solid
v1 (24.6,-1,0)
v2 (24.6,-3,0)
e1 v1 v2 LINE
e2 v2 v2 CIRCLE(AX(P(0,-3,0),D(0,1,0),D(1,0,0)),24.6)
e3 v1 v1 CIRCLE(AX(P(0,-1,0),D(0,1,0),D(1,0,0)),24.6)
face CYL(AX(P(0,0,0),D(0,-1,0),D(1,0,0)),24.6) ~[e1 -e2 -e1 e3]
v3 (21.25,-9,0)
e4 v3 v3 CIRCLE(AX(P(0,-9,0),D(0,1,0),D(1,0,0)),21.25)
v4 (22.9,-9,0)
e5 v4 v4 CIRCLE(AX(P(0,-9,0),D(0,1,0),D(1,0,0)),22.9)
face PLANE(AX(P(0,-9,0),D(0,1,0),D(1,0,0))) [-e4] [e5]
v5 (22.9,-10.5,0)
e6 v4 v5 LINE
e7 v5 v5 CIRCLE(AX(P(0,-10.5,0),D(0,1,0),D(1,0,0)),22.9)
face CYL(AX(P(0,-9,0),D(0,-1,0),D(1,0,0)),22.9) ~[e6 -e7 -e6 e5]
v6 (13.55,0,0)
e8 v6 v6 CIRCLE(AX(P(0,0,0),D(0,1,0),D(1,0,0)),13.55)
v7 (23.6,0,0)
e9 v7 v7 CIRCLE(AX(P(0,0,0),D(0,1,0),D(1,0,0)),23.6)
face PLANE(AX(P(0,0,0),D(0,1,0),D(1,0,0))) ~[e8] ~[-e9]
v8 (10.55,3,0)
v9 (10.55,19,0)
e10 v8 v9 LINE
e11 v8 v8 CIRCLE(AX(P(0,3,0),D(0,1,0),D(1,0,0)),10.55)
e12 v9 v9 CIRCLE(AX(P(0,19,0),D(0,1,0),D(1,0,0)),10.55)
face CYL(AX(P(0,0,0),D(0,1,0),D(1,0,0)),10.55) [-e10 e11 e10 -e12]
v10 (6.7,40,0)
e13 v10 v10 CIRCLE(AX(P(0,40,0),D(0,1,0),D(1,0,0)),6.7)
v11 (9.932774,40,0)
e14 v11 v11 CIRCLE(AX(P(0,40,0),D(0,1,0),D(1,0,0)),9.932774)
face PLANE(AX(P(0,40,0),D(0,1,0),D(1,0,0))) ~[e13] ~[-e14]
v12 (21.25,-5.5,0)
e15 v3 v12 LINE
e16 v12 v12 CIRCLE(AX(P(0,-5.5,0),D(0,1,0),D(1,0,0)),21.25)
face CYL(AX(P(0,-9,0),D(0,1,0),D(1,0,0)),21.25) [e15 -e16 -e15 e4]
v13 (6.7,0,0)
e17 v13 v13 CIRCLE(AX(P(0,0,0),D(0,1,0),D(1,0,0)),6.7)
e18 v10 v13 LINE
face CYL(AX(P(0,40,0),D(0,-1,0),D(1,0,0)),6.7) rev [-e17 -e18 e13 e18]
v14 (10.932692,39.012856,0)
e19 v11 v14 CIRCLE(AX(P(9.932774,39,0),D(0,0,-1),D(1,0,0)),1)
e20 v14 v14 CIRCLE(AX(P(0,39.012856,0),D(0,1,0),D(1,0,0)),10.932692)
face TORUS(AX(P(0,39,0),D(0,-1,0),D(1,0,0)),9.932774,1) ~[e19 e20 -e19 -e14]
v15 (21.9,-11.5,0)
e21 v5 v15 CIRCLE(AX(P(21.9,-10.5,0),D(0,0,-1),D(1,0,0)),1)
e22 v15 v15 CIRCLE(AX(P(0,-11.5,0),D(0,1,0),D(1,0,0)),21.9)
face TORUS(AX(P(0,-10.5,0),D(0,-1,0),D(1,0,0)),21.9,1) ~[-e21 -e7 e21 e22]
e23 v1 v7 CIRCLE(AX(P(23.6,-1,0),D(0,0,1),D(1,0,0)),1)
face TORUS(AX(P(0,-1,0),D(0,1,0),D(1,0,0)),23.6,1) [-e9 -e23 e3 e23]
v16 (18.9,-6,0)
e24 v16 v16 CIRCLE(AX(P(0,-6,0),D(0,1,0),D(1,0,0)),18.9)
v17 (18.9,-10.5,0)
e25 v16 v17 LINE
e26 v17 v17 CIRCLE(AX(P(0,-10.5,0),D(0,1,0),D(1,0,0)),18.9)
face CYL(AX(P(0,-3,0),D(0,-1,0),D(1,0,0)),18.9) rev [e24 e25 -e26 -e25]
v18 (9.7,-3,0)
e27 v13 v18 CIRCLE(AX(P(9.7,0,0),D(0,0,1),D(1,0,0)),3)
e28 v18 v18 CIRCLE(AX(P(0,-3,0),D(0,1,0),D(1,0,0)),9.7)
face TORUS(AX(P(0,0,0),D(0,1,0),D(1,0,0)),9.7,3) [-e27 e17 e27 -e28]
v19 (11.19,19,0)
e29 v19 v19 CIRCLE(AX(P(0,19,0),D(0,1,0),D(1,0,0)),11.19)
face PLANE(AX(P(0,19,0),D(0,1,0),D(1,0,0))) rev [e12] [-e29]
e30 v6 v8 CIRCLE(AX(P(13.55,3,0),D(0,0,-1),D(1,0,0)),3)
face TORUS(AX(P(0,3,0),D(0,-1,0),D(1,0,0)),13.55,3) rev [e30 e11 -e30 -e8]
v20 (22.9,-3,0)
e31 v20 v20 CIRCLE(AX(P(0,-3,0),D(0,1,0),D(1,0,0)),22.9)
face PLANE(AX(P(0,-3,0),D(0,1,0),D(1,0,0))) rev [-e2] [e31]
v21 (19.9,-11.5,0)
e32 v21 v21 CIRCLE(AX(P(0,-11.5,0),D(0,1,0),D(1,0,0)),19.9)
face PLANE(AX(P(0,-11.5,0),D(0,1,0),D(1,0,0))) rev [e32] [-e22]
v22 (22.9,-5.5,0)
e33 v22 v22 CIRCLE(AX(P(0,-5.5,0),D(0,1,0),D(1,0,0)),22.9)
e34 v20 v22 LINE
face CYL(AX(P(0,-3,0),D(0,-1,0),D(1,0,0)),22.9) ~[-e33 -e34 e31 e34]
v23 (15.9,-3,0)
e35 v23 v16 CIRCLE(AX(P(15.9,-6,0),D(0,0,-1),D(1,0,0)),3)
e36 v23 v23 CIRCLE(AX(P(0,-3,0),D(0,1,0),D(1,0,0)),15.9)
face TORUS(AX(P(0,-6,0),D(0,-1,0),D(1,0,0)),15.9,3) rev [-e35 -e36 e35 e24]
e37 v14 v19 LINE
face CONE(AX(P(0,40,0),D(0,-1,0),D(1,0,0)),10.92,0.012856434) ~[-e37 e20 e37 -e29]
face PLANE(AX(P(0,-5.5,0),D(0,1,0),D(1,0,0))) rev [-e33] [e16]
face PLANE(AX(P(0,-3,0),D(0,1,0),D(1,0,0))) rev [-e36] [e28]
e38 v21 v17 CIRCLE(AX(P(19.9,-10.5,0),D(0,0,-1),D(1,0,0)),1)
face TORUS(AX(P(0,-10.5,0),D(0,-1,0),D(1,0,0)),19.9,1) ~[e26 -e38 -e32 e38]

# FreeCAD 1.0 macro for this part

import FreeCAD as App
import Part
import Sketcher
from FreeCAD import Vector


def edges_at(feature, points):
    """Names of the edges that pass closest to the given points."""
    edges = feature.Shape.Edges
    near = lambda p: min(range(len(edges)), key=lambda i: edges[i].distToShape(Part.Vertex(*p))[0])
    return sorted({f"Edge{near(p) + 1}" for p in points})

doc = App.newDocument("Part")
body = doc.addObject("PartDesign::Body", "Body")

sketch1 = body.newObject("Sketcher::SketchObject", "Sketch")
sketch1.AttachmentSupport = (doc.getObject("XY_Plane"), [""])
sketch1.MapMode = "FlatFace"
sketch1.addGeometry([
    Part.LineSegment(Vector(24.6, -3, 0), Vector(24.6, 0, 0)),
    Part.LineSegment(Vector(24.6, 0, 0), Vector(10.6, 0, 0)),
    Part.LineSegment(Vector(10.6, 0, 0), Vector(10.6, 19, 0)),
    Part.LineSegment(Vector(10.6, 19, 0), Vector(11.2, 19, 0)),
    Part.LineSegment(Vector(11.2, 19, 0), Vector(10.9, 40, 0)),
    Part.LineSegment(Vector(10.9, 40, 0), Vector(6.7, 40, 0)),
    Part.LineSegment(Vector(6.7, 40, 0), Vector(6.7, -3, 0)),
    Part.LineSegment(Vector(6.7, -3, 0), Vector(18.9, -3, 0)),
    Part.LineSegment(Vector(18.9, -3, 0), Vector(18.9, -11.5, 0)),
    Part.LineSegment(Vector(18.9, -11.5, 0), Vector(22.9, -11.5, 0)),
    Part.LineSegment(Vector(22.9, -11.5, 0), Vector(22.9, -9, 0)),
    Part.LineSegment(Vector(22.9, -9, 0), Vector(21.2, -9, 0)),
    Part.LineSegment(Vector(21.2, -9, 0), Vector(21.2, -5.5, 0)),
    Part.LineSegment(Vector(21.2, -5.5, 0), Vector(22.9, -5.5, 0)),
    Part.LineSegment(Vector(22.9, -5.5, 0), Vector(22.9, -3, 0)),
    Part.LineSegment(Vector(22.9, -3, 0), Vector(24.6, -3, 0)),
], False)
sketch1.addConstraint([
    Sketcher.Constraint("Coincident", 0, 2, 1, 1),
    Sketcher.Constraint("Coincident", 1, 2, 2, 1),
    Sketcher.Constraint("Coincident", 2, 2, 3, 1),
    Sketcher.Constraint("Coincident", 3, 2, 4, 1),
    Sketcher.Constraint("Coincident", 4, 2, 5, 1),
    Sketcher.Constraint("Coincident", 5, 2, 6, 1),
    Sketcher.Constraint("Coincident", 6, 2, 7, 1),
    Sketcher.Constraint("Coincident", 7, 2, 8, 1),
    Sketcher.Constraint("Coincident", 8, 2, 9, 1),
    Sketcher.Constraint("Coincident", 9, 2, 10, 1),
    Sketcher.Constraint("Coincident", 10, 2, 11, 1),
    Sketcher.Constraint("Coincident", 11, 2, 12, 1),
    Sketcher.Constraint("Coincident", 12, 2, 13, 1),
    Sketcher.Constraint("Coincident", 13, 2, 14, 1),
    Sketcher.Constraint("Coincident", 14, 2, 15, 1),
    Sketcher.Constraint("Coincident", 15, 2, 0, 1),
    Sketcher.Constraint("Vertical", 0),
    Sketcher.Constraint("Horizontal", 1),
    Sketcher.Constraint("Vertical", 2),
    Sketcher.Constraint("Horizontal", 3),
    Sketcher.Constraint("Horizontal", 5),
    Sketcher.Constraint("Vertical", 6),
    Sketcher.Constraint("Horizontal", 7),
    Sketcher.Constraint("Vertical", 8),
    Sketcher.Constraint("Horizontal", 9),
    Sketcher.Constraint("Vertical", 10),
    Sketcher.Constraint("Horizontal", 11),
    Sketcher.Constraint("Vertical", 12),
    Sketcher.Constraint("Horizontal", 13),
    Sketcher.Constraint("Vertical", 14),
    Sketcher.Constraint("Horizontal", 15),
    Sketcher.Constraint("PointOnObject", 0, 2, -1),
    Sketcher.Constraint("Horizontal", 7, 2, 14, 2),
    Sketcher.Constraint("Vertical", 10, 2, 13, 2),
    Sketcher.Constraint("Equal", 10, 14),
    Sketcher.Constraint("DistanceX", 9, 1, 9, 2, 4.0),
    Sketcher.Constraint("DistanceY", 0, 1, 0, 2, 3.0),
    Sketcher.Constraint("DistanceY", 8, 2, 8, 1, 8.5),
    Sketcher.Constraint("DistanceY", 12, 1, 12, 2, 3.5),
    Sketcher.Constraint("DistanceY", -1, 1, 4, 2, 40.0),
    Sketcher.Constraint("DistanceY", 3, 2, 4, 2, 21.0),
    Sketcher.Constraint("DistanceX", 11, 2, 11, 1, 1.65),
    Sketcher.Constraint("DistanceX", 7, 1, 7, 2, 12.2),
    Sketcher.Constraint("DistanceX", 15, 1, 15, 2, 1.7),
    Sketcher.Constraint("DistanceX", 1, 2, 1, 1, 14.05),
    Sketcher.Constraint("DistanceX", 3, 1, 3, 2, 0.64),
    Sketcher.Constraint("DistanceX", 5, 2, 5, 1, 4.22),
    Sketcher.Constraint("DistanceX", -1, 1, 0, 2, 24.6),
])
revolution = body.newObject("PartDesign::Revolution", "Revolution")
revolution.Profile = sketch1
revolution.ReferenceAxis = (sketch1, ["V_Axis"])
revolution.Angle = 360
doc.recompute()

fillet = body.newObject("PartDesign::Fillet", "Fillet")
fillet.Base = (revolution, edges_at(revolution, [
    (-10.92, 40, 0),
    (-24.6, 0, 0),
    (-22.9, -11.5, 0),
    (-18.9, -11.5, 0),
]))
fillet.Radius = 1
doc.recompute()

fillet2 = body.newObject("PartDesign::Fillet", "Fillet001")
fillet2.Base = (fillet, edges_at(fillet, [(-10.55, 0, 0), (-6.7, -3, 0), (-18.9, -3, 0)]))
fillet2.Radius = 3

doc.recompute()
